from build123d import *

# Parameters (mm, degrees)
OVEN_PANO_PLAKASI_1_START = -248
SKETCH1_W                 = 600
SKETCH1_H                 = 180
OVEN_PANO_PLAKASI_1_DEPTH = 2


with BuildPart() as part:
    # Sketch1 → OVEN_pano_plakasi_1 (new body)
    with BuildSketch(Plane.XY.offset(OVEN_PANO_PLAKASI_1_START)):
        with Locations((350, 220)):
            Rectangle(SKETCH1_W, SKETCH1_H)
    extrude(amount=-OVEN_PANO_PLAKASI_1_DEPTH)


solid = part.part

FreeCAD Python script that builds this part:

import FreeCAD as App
import Part
import Sketcher


def add_polygon(sketch, points):
    """Adds a closed chain of lines whose ends are joined by coincident constraints."""
    first, n = sketch.GeometryCount, len(points)
    for a, b in zip(points, points[1:] + points[:1]):
        sketch.addGeometry(Part.LineSegment(App.Vector(*a, 0), App.Vector(*b, 0)), False)
    for i in range(n):
        sketch.addConstraint(Sketcher.Constraint("Coincident", first + i, 2, first + (i + 1) % n, 1))

doc = App.newDocument("Part")
params = doc.addObject("Spreadsheet::Sheet", "Params")
for row, (alias, value) in enumerate([
    ("sketch1_width", "600 mm"),
    ("sketch1_height", "180 mm"),
    ("pad1_length", "2 mm"),
], start=1):
    params.set(f"A{row}", alias)
    params.set(f"B{row}", "=" + value)
    params.setAlias(f"B{row}", alias)

body = doc.addObject("PartDesign::Body", "Body")

# Sketch on XY plane
sketch1 = doc.addObject("Sketcher::SketchObject", "Sketch")
body.addObject(sketch1)
sketch1.AttachmentSupport = (doc.XY_Plane, [""])
sketch1.MapMode = "FlatFace"
sketch1.AttachmentOffset = App.Placement(App.Vector(0, 0, -248), App.Rotation())
add_polygon(sketch1, [(50, 310), (50, 130), (650, 130), (650, 310)])  # lines 0-3
sketch1.addConstraint([
    Sketcher.Constraint("Vertical", 0),
    Sketcher.Constraint("Horizontal", 1),
    Sketcher.Constraint("Vertical", 2),
    Sketcher.Constraint("Horizontal", 3),
    Sketcher.Constraint("DistanceX", 1, 1, 1, 2, 600.0),
    Sketcher.Constraint("DistanceY", 0, 2, 0, 1, 180.0),
    Sketcher.Constraint("DistanceX", -1, 1, 0, 2, 50.0),
    Sketcher.Constraint("DistanceY", -1, 1, 0, 2, 130.0),
])
sketch1.setExpression("Constraints[8]", "Params.sketch1_width")
sketch1.setExpression("Constraints[9]", "Params.sketch1_height")
pad1 = doc.addObject("PartDesign::Pad", "Pad")
body.addObject(pad1)
pad1.Profile = sketch1
pad1.setExpression("Length", "Params.pad1_length")
pad1.Reversed = True

doc.recompute()
